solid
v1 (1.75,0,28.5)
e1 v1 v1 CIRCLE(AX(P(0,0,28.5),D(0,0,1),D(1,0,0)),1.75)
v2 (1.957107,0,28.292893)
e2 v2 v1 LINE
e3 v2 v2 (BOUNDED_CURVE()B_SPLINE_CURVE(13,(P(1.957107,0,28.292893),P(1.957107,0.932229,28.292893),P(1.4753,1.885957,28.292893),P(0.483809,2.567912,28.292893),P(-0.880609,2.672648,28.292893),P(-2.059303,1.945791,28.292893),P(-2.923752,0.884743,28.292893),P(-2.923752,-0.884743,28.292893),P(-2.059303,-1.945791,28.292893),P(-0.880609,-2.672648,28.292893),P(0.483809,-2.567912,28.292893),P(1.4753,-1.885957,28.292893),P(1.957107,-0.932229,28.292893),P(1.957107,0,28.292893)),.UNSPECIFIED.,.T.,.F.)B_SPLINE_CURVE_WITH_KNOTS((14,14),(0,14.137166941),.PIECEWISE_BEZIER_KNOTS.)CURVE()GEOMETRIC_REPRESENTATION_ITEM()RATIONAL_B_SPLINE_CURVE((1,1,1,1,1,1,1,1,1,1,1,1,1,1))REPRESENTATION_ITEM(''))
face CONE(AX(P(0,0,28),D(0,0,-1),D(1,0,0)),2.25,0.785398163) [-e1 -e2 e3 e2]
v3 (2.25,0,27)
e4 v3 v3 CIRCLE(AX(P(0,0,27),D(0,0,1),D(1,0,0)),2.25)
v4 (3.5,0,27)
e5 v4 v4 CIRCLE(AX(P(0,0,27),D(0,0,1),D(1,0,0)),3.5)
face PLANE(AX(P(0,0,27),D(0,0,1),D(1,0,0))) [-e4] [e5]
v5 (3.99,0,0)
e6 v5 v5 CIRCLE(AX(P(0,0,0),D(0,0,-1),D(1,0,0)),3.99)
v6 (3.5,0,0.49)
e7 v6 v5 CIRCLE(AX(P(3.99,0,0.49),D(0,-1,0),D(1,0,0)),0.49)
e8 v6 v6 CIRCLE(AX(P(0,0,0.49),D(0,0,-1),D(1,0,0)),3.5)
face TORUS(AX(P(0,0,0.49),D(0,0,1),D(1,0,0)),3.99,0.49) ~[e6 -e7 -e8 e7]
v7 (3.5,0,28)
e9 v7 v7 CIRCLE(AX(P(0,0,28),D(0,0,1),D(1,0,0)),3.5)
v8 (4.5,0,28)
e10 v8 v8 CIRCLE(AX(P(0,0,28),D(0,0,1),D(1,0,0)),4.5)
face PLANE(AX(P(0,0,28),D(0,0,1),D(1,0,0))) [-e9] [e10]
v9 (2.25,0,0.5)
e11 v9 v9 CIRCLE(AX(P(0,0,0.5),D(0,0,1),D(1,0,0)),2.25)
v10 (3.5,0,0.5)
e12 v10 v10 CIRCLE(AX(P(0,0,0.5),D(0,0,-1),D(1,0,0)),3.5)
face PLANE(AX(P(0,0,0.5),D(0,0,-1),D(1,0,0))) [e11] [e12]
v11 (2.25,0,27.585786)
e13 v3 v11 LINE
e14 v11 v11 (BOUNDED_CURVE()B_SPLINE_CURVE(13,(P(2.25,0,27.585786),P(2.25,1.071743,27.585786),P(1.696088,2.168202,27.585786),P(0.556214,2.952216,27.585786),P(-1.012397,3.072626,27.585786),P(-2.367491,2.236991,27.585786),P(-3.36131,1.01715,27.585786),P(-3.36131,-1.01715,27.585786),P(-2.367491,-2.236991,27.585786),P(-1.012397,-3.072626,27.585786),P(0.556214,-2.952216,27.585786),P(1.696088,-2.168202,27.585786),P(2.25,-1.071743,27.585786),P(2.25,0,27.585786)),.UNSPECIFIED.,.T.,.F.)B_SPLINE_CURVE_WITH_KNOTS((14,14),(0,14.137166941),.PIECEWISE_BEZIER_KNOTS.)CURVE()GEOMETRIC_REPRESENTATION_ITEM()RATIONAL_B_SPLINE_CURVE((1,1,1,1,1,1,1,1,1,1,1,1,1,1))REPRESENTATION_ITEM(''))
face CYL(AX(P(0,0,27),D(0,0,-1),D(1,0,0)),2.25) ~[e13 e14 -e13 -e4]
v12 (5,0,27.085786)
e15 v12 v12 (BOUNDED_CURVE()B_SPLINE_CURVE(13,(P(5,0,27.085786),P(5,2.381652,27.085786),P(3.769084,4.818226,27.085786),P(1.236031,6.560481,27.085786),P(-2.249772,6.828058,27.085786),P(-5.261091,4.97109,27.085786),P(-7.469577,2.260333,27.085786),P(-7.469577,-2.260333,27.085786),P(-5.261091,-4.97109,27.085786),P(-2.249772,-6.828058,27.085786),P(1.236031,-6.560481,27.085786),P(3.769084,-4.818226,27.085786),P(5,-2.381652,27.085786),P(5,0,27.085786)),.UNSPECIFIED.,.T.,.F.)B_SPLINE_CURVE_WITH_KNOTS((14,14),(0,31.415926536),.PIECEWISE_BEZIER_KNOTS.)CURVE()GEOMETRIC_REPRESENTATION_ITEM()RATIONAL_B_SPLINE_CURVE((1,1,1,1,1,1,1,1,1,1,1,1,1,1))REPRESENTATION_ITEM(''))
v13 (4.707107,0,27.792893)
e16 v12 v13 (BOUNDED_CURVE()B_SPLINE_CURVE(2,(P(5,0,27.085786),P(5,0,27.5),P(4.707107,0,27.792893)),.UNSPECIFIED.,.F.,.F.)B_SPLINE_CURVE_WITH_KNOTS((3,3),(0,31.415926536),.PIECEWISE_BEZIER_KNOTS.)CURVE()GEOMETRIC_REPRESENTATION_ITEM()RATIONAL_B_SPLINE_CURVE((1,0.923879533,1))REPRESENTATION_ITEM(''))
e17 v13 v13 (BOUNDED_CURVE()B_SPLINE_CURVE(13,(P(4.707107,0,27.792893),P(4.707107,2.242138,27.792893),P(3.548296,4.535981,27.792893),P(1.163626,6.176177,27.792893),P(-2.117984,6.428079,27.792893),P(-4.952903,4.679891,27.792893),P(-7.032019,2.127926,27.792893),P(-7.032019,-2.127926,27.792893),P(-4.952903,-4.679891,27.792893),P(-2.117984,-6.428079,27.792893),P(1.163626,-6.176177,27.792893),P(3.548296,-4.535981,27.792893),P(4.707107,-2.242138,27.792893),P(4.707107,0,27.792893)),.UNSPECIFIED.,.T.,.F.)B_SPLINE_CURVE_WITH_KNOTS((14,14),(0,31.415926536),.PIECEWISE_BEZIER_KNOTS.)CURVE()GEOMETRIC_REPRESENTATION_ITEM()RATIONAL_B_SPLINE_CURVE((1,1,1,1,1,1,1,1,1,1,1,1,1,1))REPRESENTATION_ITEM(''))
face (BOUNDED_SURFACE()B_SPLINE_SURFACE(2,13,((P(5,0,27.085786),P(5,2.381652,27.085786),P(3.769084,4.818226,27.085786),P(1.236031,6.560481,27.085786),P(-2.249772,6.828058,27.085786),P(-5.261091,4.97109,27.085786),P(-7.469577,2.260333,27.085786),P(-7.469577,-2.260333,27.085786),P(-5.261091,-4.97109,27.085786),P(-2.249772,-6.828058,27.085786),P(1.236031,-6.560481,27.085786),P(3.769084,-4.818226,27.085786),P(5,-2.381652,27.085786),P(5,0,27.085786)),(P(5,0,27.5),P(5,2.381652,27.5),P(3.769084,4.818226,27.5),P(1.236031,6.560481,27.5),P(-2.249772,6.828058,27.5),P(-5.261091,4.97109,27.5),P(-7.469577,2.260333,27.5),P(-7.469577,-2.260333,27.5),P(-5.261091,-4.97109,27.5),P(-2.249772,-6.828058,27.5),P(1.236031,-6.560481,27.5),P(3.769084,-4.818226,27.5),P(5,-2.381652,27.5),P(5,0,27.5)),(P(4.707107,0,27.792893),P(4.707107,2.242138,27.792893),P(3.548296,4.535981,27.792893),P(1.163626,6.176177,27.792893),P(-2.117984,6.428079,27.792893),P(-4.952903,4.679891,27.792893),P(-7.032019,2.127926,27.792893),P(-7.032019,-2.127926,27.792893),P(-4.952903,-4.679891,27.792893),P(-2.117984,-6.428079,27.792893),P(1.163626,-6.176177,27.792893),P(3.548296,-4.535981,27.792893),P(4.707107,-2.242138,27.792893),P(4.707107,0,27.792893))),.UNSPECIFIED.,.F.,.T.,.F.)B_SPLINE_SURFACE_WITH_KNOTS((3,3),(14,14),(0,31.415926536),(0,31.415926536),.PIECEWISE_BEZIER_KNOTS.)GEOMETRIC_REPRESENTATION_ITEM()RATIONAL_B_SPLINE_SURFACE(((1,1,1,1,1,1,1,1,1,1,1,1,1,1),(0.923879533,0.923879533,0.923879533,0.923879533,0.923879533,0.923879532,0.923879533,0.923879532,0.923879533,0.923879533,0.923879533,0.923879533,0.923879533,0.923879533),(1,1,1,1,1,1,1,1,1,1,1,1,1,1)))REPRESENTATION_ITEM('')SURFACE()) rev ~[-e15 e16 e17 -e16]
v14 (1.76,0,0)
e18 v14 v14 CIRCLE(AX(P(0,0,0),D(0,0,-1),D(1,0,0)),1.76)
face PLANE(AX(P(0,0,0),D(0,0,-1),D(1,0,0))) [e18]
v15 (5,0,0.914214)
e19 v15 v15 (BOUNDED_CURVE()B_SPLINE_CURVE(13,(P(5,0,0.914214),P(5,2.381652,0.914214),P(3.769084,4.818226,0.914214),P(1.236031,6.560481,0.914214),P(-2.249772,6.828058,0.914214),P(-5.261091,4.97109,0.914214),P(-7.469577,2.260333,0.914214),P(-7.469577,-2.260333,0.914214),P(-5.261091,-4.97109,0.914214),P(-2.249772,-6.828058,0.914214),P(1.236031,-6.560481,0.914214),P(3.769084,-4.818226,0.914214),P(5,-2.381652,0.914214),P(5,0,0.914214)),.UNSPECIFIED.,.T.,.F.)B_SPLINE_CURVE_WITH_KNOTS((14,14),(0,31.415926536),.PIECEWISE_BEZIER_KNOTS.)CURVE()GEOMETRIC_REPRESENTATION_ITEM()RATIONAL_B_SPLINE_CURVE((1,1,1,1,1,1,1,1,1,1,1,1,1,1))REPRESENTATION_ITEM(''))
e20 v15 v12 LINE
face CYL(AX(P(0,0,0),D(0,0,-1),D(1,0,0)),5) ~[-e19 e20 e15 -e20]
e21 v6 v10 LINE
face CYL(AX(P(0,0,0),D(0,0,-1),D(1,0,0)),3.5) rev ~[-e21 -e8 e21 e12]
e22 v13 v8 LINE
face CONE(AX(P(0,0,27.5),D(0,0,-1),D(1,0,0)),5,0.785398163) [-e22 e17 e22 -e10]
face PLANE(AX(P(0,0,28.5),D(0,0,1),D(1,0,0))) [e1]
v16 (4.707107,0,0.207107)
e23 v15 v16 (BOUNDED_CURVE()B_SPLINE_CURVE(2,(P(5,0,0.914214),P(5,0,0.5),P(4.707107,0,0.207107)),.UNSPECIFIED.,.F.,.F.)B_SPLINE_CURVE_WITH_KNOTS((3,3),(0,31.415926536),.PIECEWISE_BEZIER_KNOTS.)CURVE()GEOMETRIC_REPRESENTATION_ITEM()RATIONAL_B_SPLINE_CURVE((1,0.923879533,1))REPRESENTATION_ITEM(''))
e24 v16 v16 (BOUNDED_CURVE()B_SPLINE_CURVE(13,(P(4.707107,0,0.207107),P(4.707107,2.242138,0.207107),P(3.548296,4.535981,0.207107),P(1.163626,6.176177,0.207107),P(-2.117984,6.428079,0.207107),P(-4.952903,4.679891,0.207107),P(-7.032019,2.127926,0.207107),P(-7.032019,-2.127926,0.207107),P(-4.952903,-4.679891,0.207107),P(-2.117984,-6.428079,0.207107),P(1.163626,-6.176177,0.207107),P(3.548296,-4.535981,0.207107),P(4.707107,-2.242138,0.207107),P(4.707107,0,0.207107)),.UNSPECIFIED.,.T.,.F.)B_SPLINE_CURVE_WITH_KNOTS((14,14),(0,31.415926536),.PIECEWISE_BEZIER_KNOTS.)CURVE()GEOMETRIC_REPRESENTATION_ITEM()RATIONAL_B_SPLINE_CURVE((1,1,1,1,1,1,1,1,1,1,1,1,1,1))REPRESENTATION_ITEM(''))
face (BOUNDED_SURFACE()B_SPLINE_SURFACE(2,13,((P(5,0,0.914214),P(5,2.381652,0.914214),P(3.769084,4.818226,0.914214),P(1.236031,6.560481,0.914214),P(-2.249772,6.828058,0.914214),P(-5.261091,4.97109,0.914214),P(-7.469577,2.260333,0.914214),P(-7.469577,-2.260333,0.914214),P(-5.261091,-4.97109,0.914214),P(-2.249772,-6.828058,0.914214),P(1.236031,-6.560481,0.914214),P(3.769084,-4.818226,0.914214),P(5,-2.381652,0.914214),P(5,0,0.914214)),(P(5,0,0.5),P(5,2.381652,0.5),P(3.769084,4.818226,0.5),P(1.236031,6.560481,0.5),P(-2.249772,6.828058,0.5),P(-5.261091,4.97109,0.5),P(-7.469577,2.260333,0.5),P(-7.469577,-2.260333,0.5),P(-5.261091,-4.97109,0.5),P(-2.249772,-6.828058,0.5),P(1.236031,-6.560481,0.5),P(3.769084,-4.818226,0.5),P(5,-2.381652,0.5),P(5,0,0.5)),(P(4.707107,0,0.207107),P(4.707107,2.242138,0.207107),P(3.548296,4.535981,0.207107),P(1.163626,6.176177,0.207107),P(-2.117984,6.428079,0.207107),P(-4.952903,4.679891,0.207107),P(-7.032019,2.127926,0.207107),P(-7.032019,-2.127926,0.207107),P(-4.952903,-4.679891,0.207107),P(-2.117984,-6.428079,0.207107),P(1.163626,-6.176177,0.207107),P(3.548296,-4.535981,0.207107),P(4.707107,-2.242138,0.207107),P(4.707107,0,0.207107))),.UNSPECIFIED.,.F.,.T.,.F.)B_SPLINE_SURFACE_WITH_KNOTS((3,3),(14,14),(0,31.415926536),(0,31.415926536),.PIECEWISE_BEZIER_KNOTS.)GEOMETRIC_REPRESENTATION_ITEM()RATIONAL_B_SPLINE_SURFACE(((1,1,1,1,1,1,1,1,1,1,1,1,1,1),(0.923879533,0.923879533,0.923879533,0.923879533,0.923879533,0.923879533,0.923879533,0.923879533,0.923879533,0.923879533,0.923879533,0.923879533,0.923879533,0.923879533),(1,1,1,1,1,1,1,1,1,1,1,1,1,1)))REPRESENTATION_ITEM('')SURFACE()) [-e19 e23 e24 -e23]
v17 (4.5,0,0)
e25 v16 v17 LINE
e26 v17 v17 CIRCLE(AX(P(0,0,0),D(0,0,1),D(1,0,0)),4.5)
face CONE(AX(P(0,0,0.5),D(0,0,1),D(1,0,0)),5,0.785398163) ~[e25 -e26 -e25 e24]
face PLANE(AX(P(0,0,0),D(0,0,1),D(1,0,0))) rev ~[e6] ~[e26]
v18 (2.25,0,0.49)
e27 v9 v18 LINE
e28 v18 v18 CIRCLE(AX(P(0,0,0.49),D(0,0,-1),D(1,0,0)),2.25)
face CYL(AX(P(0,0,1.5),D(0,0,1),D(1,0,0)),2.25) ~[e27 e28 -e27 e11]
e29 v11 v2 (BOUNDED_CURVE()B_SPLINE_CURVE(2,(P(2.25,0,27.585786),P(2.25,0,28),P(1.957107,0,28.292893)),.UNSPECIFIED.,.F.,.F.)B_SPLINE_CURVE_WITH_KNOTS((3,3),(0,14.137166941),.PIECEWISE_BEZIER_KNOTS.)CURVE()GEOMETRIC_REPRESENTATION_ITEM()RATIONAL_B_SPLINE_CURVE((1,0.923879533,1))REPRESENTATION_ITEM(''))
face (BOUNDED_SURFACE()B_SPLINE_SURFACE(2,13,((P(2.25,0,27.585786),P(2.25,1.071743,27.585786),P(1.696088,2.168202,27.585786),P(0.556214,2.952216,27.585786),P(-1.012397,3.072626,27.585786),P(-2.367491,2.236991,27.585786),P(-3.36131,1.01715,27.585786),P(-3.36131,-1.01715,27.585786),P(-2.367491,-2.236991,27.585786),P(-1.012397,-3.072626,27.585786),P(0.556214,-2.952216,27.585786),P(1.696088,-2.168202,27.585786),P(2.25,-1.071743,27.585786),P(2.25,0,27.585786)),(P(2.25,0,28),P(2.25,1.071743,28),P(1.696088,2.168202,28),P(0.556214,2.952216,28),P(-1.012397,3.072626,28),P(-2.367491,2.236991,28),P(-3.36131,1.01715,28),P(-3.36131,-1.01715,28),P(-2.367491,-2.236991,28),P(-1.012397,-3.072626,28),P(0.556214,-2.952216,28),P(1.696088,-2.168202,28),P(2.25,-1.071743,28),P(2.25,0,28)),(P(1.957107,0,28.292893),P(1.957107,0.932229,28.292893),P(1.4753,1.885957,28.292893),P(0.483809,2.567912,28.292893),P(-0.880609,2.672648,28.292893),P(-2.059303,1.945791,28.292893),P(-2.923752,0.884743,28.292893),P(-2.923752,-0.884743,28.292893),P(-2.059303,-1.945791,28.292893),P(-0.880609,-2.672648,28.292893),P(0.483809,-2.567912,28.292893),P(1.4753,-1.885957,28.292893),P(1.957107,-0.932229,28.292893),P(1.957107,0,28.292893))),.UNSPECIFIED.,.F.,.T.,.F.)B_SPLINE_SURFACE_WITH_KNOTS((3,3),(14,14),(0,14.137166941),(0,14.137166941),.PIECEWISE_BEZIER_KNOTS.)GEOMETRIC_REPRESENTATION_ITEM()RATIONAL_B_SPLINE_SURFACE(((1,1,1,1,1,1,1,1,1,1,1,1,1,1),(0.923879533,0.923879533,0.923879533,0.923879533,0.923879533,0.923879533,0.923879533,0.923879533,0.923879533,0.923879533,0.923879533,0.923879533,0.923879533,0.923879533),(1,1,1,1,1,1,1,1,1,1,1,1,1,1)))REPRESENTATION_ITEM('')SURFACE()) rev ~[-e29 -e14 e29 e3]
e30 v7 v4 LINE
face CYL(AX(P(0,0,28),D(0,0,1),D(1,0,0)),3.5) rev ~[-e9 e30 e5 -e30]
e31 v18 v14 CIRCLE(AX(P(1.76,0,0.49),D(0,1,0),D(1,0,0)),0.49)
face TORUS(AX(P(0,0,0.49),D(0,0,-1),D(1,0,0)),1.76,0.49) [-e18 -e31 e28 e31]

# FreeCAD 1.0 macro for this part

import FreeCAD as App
import Part
import Sketcher


def edges_at(feature, points):
    """Names of the edges that pass closest to the given points."""
    edges = feature.Shape.Edges
    near = lambda p: min(range(len(edges)), key=lambda i: edges[i].distToShape(Part.Vertex(*p))[0])
    return sorted({f"Edge{near(p) + 1}" for p in points})

doc = App.newDocument("Part")
body = doc.addObject("PartDesign::Body", "Body")

sketch1 = body.newObject("Sketcher::SketchObject", "Sketch")
sketch1.AttachmentSupport = (doc.getObject("XY_Plane"), [""])
sketch1.MapMode = "FlatFace"
sketch1.addGeometry(Part.Circle(App.Vector(0, 0, 0), App.Vector(0, 0, 1), 5), False)
sketch1.addConstraint([
    Sketcher.Constraint("Coincident", 0, 3, -1, 1),
    Sketcher.Constraint("Diameter", 0, 10.0),
])
pad1 = body.newObject("PartDesign::Pad", "Pad")
pad1.Profile = sketch1
pad1.Length = 28
doc.recompute()

chamfer = body.newObject("PartDesign::Chamfer", "Chamfer")
chamfer.Base = (pad1, edges_at(pad1, [(-5, 0, 0)]))
chamfer.Size = 0.5
doc.recompute()

chamfer2 = body.newObject("PartDesign::Chamfer", "Chamfer001")
chamfer2.Base = (chamfer, edges_at(chamfer, [(-5, 0, 28)]))
chamfer2.Size = 0.5

sketch2 = body.newObject("Sketcher::SketchObject", "Sketch001")
sketch2.AttachmentSupport = (doc.getObject("XY_Plane"), [""])
sketch2.MapMode = "FlatFace"
sketch2.AttachmentOffset = App.Placement(App.Vector(0, 0, 28), App.Rotation())
sketch2.addGeometry(Part.Circle(App.Vector(0, 0, 0), App.Vector(0, 0, 1), 3.5), False)
sketch2.addConstraint([
    Sketcher.Constraint("Coincident", 0, 3, -1, 1),
    Sketcher.Constraint("Diameter", 0, 7.0),
])
pocket1 = body.newObject("PartDesign::Pocket", "Pocket")
pocket1.Profile = sketch2
pocket1.Length = 1
doc.recompute()

fillet = body.newObject("PartDesign::Fillet", "Fillet")
fillet.Base = (pocket1, edges_at(pocket1, [(-5, 0, 27.5)]))
fillet.Radius = 1
doc.recompute()

fillet2 = body.newObject("PartDesign::Fillet", "Fillet001")
fillet2.Base = (fillet, edges_at(fillet, [(-5, 0, 0.5)]))
fillet2.Radius = 1

sketch3 = body.newObject("Sketcher::SketchObject", "Sketch002")
sketch3.AttachmentSupport = (doc.getObject("XY_Plane"), [""])
sketch3.MapMode = "FlatFace"
sketch3.AttachmentOffset = App.Placement(App.Vector(0, 0, 27), App.Rotation())
sketch3.addGeometry(Part.Circle(App.Vector(0, 0, 0), App.Vector(0, 0, 1), 2.2), False)
sketch3.addConstraint([
    Sketcher.Constraint("Coincident", 0, 3, -1, 1),
    Sketcher.Constraint("Diameter", 0, 4.5),
])
pad2 = body.newObject("PartDesign::Pad", "Pad001")
pad2.Profile = sketch3
pad2.Length = 1.5
doc.recompute()

chamfer3 = body.newObject("PartDesign::Chamfer", "Chamfer002")
chamfer3.Base = (pad2, edges_at(pad2, [(-2.25, 0, 28.5)]))
chamfer3.Size = 0.5
doc.recompute()

fillet3 = body.newObject("PartDesign::Fillet", "Fillet002")
fillet3.Base = (chamfer3, edges_at(chamfer3, [(-2.25, 0, 28)]))
fillet3.Radius = 1

sketch4 = body.newObject("Sketcher::SketchObject", "Sketch003")
sketch4.AttachmentSupport = (doc.getObject("XY_Plane"), [""])
sketch4.MapMode = "FlatFace"
sketch4.addGeometry(Part.Circle(App.Vector(0, 0, 0), App.Vector(0, 0, 1), 3.5), False)
sketch4.addConstraint([
    Sketcher.Constraint("Coincident", 0, 3, -1, 1),
    Sketcher.Constraint("Diameter", 0, 7.0),
])
pocket2 = body.newObject("PartDesign::Pocket", "Pocket001")
pocket2.Profile = sketch4
pocket2.Length = 0.5
pocket2.Reversed = True

sketch5 = body.newObject("Sketcher::SketchObject", "Sketch004")
sketch5.AttachmentSupport = (doc.getObject("XY_Plane"), [""])
sketch5.MapMode = "FlatFace"
sketch5.AttachmentOffset = App.Placement(App.Vector(0, 0, 0.5), App.Rotation())
sketch5.addGeometry(Part.Circle(App.Vector(0, 0, 0), App.Vector(0, 0, 1), 2.2), False)
sketch5.addConstraint([
    Sketcher.Constraint("Coincident", 0, 3, -1, 1),
    Sketcher.Constraint("Diameter", 0, 4.5),
])
pocket3 = body.newObject("PartDesign::Pocket", "Pocket002")
pocket3.Profile = sketch5
pocket3.Length = 1
pocket3.Reversed = True

sketch6 = body.newObject("Sketcher::SketchObject", "Sketch005")
sketch6.AttachmentSupport = (doc.getObject("XY_Plane"), [""])
sketch6.MapMode = "FlatFace"
sketch6.AttachmentOffset = App.Placement(App.Vector(0, 0, 1.5), App.Rotation())
sketch6.addGeometry(Part.Circle(App.Vector(0, 0, 0), App.Vector(0, 0, 1), 2.2), False)
sketch6.addConstraint([
    Sketcher.Constraint("Coincident", 0, 3, -1, 1),
    Sketcher.Constraint("Diameter", 0, 4.5),
])
pad3 = body.newObject("PartDesign::Pad", "Pad002")
pad3.Profile = sketch6
pad3.Length = 1
pad3.Reversed = True

sketch7 = body.newObject("Sketcher::SketchObject", "Sketch006")
sketch7.AttachmentSupport = (doc.getObject("XY_Plane"), [""])
sketch7.MapMode = "FlatFace"
sketch7.AttachmentOffset = App.Placement(App.Vector(0, 0, 1.5), App.Rotation())
sketch7.addGeometry(Part.Circle(App.Vector(0, 0, 0), App.Vector(0, 0, 1), 2.2), False)
sketch7.addConstraint([
    Sketcher.Constraint("Coincident", 0, 3, -1, 1),
    Sketcher.Constraint("Diameter", 0, 4.5),
])
pad4 = body.newObject("PartDesign::Pad", "Pad003")
pad4.Profile = sketch7
pad4.Length = 1.5
pad4.Reversed = True
doc.recompute()

fillet4 = body.newObject("PartDesign::Fillet", "Fillet003")
fillet4.Base = (pad4, edges_at(pad4, [(-2.25, 0, 0)]))
fillet4.Radius = 0.49
doc.recompute()

fillet5 = body.newObject("PartDesign::Fillet", "Fillet004")
fillet5.Base = (fillet4, edges_at(fillet4, [(-3.5, 0, 0)]))
fillet5.Radius = 0.49

doc.recompute()
